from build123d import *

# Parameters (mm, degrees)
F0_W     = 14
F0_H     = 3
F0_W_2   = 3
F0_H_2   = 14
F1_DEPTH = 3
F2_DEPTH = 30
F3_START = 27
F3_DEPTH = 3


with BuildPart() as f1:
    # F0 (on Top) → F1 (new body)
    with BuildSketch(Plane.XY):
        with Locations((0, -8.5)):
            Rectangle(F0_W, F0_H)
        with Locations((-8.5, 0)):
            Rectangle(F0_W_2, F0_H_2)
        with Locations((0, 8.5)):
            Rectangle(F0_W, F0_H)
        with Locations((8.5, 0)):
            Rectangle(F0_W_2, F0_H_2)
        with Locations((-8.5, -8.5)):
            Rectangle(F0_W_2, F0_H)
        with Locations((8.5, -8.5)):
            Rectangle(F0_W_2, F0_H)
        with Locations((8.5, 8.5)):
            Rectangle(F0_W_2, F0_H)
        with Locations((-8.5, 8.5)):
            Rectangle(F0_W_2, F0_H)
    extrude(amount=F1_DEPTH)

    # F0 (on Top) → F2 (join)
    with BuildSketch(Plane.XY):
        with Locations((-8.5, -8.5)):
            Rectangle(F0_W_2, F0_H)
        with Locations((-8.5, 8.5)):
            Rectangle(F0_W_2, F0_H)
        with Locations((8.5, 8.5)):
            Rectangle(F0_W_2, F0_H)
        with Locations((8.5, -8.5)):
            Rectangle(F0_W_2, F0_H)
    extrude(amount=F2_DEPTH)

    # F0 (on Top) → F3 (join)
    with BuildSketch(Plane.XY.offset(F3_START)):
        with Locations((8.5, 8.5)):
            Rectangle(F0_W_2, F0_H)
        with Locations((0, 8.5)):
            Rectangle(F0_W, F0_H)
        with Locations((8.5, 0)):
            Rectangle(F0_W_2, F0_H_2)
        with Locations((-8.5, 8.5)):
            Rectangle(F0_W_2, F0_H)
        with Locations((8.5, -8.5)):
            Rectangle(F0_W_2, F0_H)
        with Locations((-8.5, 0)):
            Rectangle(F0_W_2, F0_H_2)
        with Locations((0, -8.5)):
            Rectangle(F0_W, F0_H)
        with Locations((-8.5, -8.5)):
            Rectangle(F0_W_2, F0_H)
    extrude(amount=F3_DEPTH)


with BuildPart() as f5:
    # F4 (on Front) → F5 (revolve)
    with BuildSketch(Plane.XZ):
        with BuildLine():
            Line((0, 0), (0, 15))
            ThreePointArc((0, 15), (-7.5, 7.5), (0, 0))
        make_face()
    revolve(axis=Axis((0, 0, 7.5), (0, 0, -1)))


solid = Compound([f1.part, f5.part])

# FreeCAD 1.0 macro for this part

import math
import FreeCAD as App
import Part
import Sketcher

V = App.Vector
Q = App.Units.Quantity


def add_polygon(sketch, points):
    """Adds a closed chain of lines whose ends are joined by coincident constraints."""
    first, n = sketch.GeometryCount, len(points)
    for a, b in zip(points, points[1:] + points[:1]):
        sketch.addGeometry(Part.LineSegment(App.Vector(*a, 0), App.Vector(*b, 0)), False)
    for i in range(n):
        sketch.addConstraint(Sketcher.Constraint("Coincident", first + i, 2, first + (i + 1) % n, 1))

doc = App.newDocument("Part")
body = doc.addObject("PartDesign::Body", "Body")

sketch1 = body.newObject("Sketcher::SketchObject", "Sketch")
sketch1.AttachmentSupport = (doc.getObject("XY_Plane"), [""])
sketch1.MapMode = "FlatFace"
add_polygon(sketch1, [(10, 10), (-10, 10), (-10, -10), (10, -10)])
add_polygon(sketch1, [(-7, -7), (-7, 7), (7, 7), (7, -7)])
sketch1.addConstraint(Sketcher.Constraint("Horizontal", 0))
sketch1.addConstraint(Sketcher.Constraint("Vertical", 1))
sketch1.addConstraint(Sketcher.Constraint("Horizontal", 2))
sketch1.addConstraint(Sketcher.Constraint("Vertical", 3))
sketch1.addConstraint(Sketcher.Constraint("Vertical", 4))
sketch1.addConstraint(Sketcher.Constraint("Horizontal", 5))
sketch1.addConstraint(Sketcher.Constraint("Vertical", 6))
sketch1.addConstraint(Sketcher.Constraint("Horizontal", 7))
sketch1.addConstraint(Sketcher.Constraint("Symmetric", 0, 2, 2, 2, -1, 1))
sketch1.addConstraint(Sketcher.Constraint("Symmetric", 4, 2, 6, 2, -1, 1))
sketch1.addConstraint(Sketcher.Constraint("Equal", 2, 1))
sketch1.addConstraint(Sketcher.Constraint("Equal", 7, 4))
sketch1.addConstraint(Sketcher.Constraint("DistanceX", 0, 2, 0, 1, Q("20 mm")))
sketch1.addConstraint(Sketcher.Constraint("DistanceX", 5, 1, 5, 2, Q("14 mm")))
pad1 = body.newObject("PartDesign::Pad", "Pad")
pad1.Profile = sketch1
pad1.Length = 3

sketch2 = body.newObject("Sketcher::SketchObject", "Sketch001")
sketch2.AttachmentSupport = (doc.getObject("XY_Plane"), [""])
sketch2.MapMode = "FlatFace"
add_polygon(sketch2, [(-10, -7), (-10, -10), (-7, -10), (-7, -7)])
add_polygon(sketch2, [(-10, 10), (-10, 7), (-7, 7), (-7, 10)])
add_polygon(sketch2, [(7, 10), (7, 7), (10, 7), (10, 10)])
add_polygon(sketch2, [(7, -7), (7, -10), (10, -10), (10, -7)])
sketch2.addConstraint(Sketcher.Constraint("Vertical", 0))
sketch2.addConstraint(Sketcher.Constraint("Horizontal", 1))
sketch2.addConstraint(Sketcher.Constraint("Vertical", 2))
sketch2.addConstraint(Sketcher.Constraint("Horizontal", 3))
sketch2.addConstraint(Sketcher.Constraint("Vertical", 4))
sketch2.addConstraint(Sketcher.Constraint("Horizontal", 5))
sketch2.addConstraint(Sketcher.Constraint("Vertical", 6))
sketch2.addConstraint(Sketcher.Constraint("Horizontal", 7))
sketch2.addConstraint(Sketcher.Constraint("Vertical", 8))
sketch2.addConstraint(Sketcher.Constraint("Horizontal", 9))
sketch2.addConstraint(Sketcher.Constraint("Vertical", 10))
sketch2.addConstraint(Sketcher.Constraint("Horizontal", 11))
sketch2.addConstraint(Sketcher.Constraint("Vertical", 12))
sketch2.addConstraint(Sketcher.Constraint("Horizontal", 13))
sketch2.addConstraint(Sketcher.Constraint("Vertical", 14))
sketch2.addConstraint(Sketcher.Constraint("Horizontal", 15))
sketch2.addConstraint(Sketcher.Constraint("Symmetric", 2, 2, 8, 2, -1, 1))
sketch2.addConstraint(Sketcher.Constraint("Symmetric", 0, 2, 10, 2, -1, 1))
sketch2.addConstraint(Sketcher.Constraint("Symmetric", 6, 2, 12, 2, -1, 1))
sketch2.addConstraint(Sketcher.Constraint("Symmetric", 4, 2, 14, 2, -1, 1))
sketch2.addConstraint(Sketcher.Constraint("Symmetric", 5, 2, 8, 2, -2))
sketch2.addConstraint(Sketcher.Constraint("Symmetric", 7, 2, 10, 2, -2))
sketch2.addConstraint(Sketcher.Constraint("Equal", 15, 0))
sketch2.addConstraint(Sketcher.Constraint("DistanceX", 1, 1, 1, 2, Q("3 mm")))
sketch2.addConstraint(Sketcher.Constraint("DistanceX", 0, 2, -1, 1, Q("10 mm")))
sketch2.addConstraint(Sketcher.Constraint("DistanceY", 0, 2, -1, 1, Q("10 mm")))
pad2 = body.newObject("PartDesign::Pad", "Pad001")
pad2.Profile = sketch2
pad2.Length = 30

sketch3 = body.newObject("Sketcher::SketchObject", "Sketch002")
sketch3.AttachmentSupport = (doc.getObject("XY_Plane"), [""])
sketch3.MapMode = "FlatFace"
sketch3.AttachmentOffset = App.Placement(V(0, 0, 27), App.Rotation())
add_polygon(sketch3, [(-10, 10), (-10, -10), (10, -10), (10, 10)])
add_polygon(sketch3, [(7, -7), (-7, -7), (-7, 7), (7, 7)])
sketch3.addConstraint(Sketcher.Constraint("Vertical", 0))
sketch3.addConstraint(Sketcher.Constraint("Horizontal", 1))
sketch3.addConstraint(Sketcher.Constraint("Vertical", 2))
sketch3.addConstraint(Sketcher.Constraint("Horizontal", 3))
sketch3.addConstraint(Sketcher.Constraint("Horizontal", 4))
sketch3.addConstraint(Sketcher.Constraint("Vertical", 5))
sketch3.addConstraint(Sketcher.Constraint("Horizontal", 6))
sketch3.addConstraint(Sketcher.Constraint("Vertical", 7))
sketch3.addConstraint(Sketcher.Constraint("Symmetric", 0, 2, 2, 2, -1, 1))
sketch3.addConstraint(Sketcher.Constraint("Symmetric", 4, 2, 6, 2, -1, 1))
sketch3.addConstraint(Sketcher.Constraint("Equal", 3, 0))
sketch3.addConstraint(Sketcher.Constraint("Equal", 6, 5))
sketch3.addConstraint(Sketcher.Constraint("DistanceX", 1, 1, 1, 2, Q("20 mm")))
sketch3.addConstraint(Sketcher.Constraint("DistanceX", 4, 2, 4, 1, Q("14 mm")))
pad3 = body.newObject("PartDesign::Pad", "Pad002")
pad3.Profile = sketch3
pad3.Length = 3
body2 = doc.addObject("PartDesign::Body", "Body001")

sketch4 = body2.newObject("Sketcher::SketchObject", "Sketch003")
sketch4.AttachmentSupport = (doc.getObject("XZ_Plane001"), [""])
sketch4.MapMode = "FlatFace"
sketch4.addGeometry(Part.LineSegment(V(0, 0, 0), V(0, 15, 0)), False)
sketch4.addGeometry(Part.ArcOfCircle(Part.Circle(V(0, 8, 0), V(0, 0, 1), 8), math.radians(90), math.radians(270)), False)
sketch4.addConstraint(Sketcher.Constraint("Coincident", 0, 1, 1, 2))
sketch4.addConstraint(Sketcher.Constraint("Coincident", 1, 1, 0, 2))
sketch4.addConstraint(Sketcher.Constraint("Vertical", 0))
sketch4.addConstraint(Sketcher.Constraint("Coincident", 0, 1, -1, 1))
sketch4.addConstraint(Sketcher.Constraint("PointOnObject", 1, 3, -2))
sketch4.addConstraint(Sketcher.Constraint("Radius", 1, Q("7.5 mm")))
revolution = body2.newObject("PartDesign::Revolution", "Revolution")
revolution.Profile = sketch4
revolution.ReferenceAxis = (sketch4, ["V_Axis"])
revolution.Angle = 360

doc.recompute()
